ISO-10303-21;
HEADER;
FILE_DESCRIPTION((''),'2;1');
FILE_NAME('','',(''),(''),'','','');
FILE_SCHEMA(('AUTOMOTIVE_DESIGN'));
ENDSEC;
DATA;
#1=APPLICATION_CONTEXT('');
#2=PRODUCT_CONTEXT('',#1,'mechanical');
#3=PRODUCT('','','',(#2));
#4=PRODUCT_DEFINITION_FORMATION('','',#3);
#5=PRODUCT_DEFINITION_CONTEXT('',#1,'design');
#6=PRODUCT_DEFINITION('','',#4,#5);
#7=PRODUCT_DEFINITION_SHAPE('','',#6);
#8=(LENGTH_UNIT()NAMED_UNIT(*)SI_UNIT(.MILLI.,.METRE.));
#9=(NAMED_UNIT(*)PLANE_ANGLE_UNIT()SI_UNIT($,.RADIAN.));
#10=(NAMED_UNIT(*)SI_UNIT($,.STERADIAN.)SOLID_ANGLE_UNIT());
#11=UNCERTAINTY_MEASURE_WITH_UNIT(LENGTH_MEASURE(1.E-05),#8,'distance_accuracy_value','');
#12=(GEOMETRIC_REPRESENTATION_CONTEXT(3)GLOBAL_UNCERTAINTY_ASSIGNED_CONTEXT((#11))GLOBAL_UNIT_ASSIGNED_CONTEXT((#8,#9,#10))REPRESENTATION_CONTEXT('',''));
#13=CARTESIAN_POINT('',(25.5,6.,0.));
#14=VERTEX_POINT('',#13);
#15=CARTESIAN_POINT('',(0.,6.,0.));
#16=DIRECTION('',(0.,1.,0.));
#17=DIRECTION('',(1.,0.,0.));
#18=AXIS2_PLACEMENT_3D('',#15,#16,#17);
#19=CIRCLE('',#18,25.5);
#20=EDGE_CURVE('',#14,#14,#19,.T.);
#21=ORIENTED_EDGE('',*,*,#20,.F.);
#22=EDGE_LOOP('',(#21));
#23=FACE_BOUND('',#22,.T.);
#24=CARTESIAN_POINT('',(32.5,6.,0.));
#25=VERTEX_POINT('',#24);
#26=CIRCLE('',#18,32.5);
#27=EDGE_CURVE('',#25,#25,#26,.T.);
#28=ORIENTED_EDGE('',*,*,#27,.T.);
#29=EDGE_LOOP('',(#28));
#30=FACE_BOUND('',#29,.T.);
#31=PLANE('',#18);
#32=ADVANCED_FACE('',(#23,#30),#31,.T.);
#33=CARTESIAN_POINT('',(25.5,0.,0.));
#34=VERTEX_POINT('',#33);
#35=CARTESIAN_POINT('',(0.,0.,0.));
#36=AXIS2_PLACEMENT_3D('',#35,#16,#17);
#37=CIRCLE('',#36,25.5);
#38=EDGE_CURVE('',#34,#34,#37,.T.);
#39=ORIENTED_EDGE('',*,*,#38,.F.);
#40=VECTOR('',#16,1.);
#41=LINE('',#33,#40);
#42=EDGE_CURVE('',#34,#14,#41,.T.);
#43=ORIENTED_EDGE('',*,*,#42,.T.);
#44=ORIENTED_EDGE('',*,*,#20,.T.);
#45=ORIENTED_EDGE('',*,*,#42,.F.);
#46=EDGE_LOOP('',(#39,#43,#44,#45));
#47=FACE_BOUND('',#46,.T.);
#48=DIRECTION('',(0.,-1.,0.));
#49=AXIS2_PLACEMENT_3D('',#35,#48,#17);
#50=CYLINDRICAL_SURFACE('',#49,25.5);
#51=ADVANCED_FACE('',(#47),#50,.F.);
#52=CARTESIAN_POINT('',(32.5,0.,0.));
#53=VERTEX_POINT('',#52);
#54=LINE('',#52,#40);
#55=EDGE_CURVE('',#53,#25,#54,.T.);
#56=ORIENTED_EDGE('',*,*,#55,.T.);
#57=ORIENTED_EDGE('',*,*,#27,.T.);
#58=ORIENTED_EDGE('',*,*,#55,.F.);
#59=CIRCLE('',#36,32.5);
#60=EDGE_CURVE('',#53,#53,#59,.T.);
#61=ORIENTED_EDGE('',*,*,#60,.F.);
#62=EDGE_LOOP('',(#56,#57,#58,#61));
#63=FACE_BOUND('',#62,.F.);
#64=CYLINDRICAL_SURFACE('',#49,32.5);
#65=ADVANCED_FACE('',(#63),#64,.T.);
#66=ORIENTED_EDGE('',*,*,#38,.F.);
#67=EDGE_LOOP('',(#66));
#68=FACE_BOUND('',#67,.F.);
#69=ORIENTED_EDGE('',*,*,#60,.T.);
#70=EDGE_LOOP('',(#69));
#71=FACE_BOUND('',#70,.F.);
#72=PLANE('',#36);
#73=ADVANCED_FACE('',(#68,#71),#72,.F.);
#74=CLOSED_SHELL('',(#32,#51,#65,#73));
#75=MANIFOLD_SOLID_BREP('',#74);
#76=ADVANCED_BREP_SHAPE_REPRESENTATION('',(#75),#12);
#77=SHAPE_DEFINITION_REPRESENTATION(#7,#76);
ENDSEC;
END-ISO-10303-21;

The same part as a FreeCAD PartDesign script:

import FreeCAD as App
import Part
import Sketcher

V = App.Vector
Q = App.Units.Quantity

doc = App.newDocument("Part")
body = doc.addObject("PartDesign::Body", "Body")

# Sketch on XZ plane
sketch1 = body.newObject("Sketcher::SketchObject", "Sketch")
sketch1.AttachmentSupport = (doc.getObject("XZ_Plane"), [""])
sketch1.MapMode = "FlatFace"
sketch1.addGeometry(Part.Circle(V(0, 0, 0), V(0, 0, 1), 32.5), False)
sketch1.addGeometry(Part.Circle(V(0, 0, 0), V(0, 0, 1), 25.5), False)
sketch1.addConstraint(Sketcher.Constraint("Coincident", 0, 3, -1, 1))
sketch1.addConstraint(Sketcher.Constraint("Coincident", 1, 3, -1, 1))
sketch1.addConstraint(Sketcher.Constraint("Diameter", 0, Q("65 mm")))
sketch1.addConstraint(Sketcher.Constraint("Diameter", 1, Q("51 mm")))
pad1 = body.newObject("PartDesign::Pad", "Pad")
pad1.Profile = sketch1
pad1.Length = 6
pad1.Reversed = True

doc.recompute()
